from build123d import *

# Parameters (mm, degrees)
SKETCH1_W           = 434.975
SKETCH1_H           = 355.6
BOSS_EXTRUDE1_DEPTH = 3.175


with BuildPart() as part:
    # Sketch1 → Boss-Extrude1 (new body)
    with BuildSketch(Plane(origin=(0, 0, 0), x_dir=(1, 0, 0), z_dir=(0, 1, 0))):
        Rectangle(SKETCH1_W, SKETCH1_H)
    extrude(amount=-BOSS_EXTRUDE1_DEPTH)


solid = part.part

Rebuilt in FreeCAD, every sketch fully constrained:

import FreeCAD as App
import Part
import Sketcher

V = App.Vector
Q = App.Units.Quantity


def add_polygon(sketch, points):
    """Adds a closed chain of lines whose ends are joined by coincident constraints."""
    first, n = sketch.GeometryCount, len(points)
    for a, b in zip(points, points[1:] + points[:1]):
        sketch.addGeometry(Part.LineSegment(App.Vector(*a, 0), App.Vector(*b, 0)), False)
    for i in range(n):
        sketch.addConstraint(Sketcher.Constraint("Coincident", first + i, 2, first + (i + 1) % n, 1))

doc = App.newDocument("Part")
body = doc.addObject("PartDesign::Body", "Body")

# Sketch on XZ plane
sketch1 = body.newObject("Sketcher::SketchObject", "Sketch")
sketch1.AttachmentSupport = (doc.getObject("XZ_Plane"), [""])
sketch1.MapMode = "FlatFace"
add_polygon(sketch1, [(-217, -178), (-217, 178), (217, 178), (217, -178)])  # lines 0-3
sketch1.addConstraint([
    Sketcher.Constraint("Vertical", 0),
    Sketcher.Constraint("Horizontal", 1),
    Sketcher.Constraint("Vertical", 2),
    Sketcher.Constraint("Horizontal", 3),
    Sketcher.Constraint("Symmetric", 0, 2, 2, 2, -1, 1),
    Sketcher.Constraint("DistanceY", 0, 1, 0, 2, Q("14 in")),
    Sketcher.Constraint("DistanceX", 1, 1, 1, 2, Q("17.125 in")),
])
pad1 = body.newObject("PartDesign::Pad", "Pad")
pad1.Profile = sketch1
pad1.Length = Q("0.125 in")

doc.recompute()
